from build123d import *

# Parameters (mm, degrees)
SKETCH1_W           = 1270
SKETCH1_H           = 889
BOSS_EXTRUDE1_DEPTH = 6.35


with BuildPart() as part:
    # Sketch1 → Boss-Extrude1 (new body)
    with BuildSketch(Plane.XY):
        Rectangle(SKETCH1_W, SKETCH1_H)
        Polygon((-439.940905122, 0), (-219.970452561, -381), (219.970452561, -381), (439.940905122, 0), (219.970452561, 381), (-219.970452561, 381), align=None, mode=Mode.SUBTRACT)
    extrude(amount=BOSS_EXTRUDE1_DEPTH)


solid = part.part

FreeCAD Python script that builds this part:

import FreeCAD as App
import Part
import Sketcher
Q = App.Units.Quantity

doc = App.newDocument("Part")
body = doc.addObject("PartDesign::Body", "Body")

# Sketch on XY plane
sketch1 = body.newObject("Sketcher::SketchObject", "Sketch")
sketch1.AttachmentSupport = (doc.getObject("XY_Plane"), [""])
sketch1.MapMode = "FlatFace"
sketch1.addGeometry(Part.LineSegment(App.Vector(-635, 444, 0), App.Vector(-635, -444, 0)), False)
sketch1.addGeometry(Part.LineSegment(App.Vector(-635, -444, 0), App.Vector(635, -444, 0)), False)
sketch1.addGeometry(Part.LineSegment(App.Vector(635, -444, 0), App.Vector(635, 444, 0)), False)
sketch1.addGeometry(Part.LineSegment(App.Vector(635, 444, 0), App.Vector(-635, 444, 0)), False)
sketch1.addGeometry(Part.LineSegment(App.Vector(-220, -381, 0), App.Vector(-440, 0, 0)), False)
sketch1.addGeometry(Part.LineSegment(App.Vector(-440, 0, 0), App.Vector(-220, 381, 0)), False)
sketch1.addGeometry(Part.LineSegment(App.Vector(-220, 381, 0), App.Vector(220, 381, 0)), False)
sketch1.addGeometry(Part.LineSegment(App.Vector(220, 381, 0), App.Vector(440, 0, 0)), False)
sketch1.addGeometry(Part.LineSegment(App.Vector(440, 0, 0), App.Vector(220, -381, 0)), False)
sketch1.addGeometry(Part.LineSegment(App.Vector(220, -381, 0), App.Vector(-220, -381, 0)), False)
sketch1.addConstraint(Sketcher.Constraint("Coincident", 0, 2, 1, 1))
sketch1.addConstraint(Sketcher.Constraint("Coincident", 1, 2, 2, 1))
sketch1.addConstraint(Sketcher.Constraint("Coincident", 2, 2, 3, 1))
sketch1.addConstraint(Sketcher.Constraint("Coincident", 3, 2, 0, 1))
sketch1.addConstraint(Sketcher.Constraint("Coincident", 4, 2, 5, 1))
sketch1.addConstraint(Sketcher.Constraint("Coincident", 5, 2, 6, 1))
sketch1.addConstraint(Sketcher.Constraint("Coincident", 6, 2, 7, 1))
sketch1.addConstraint(Sketcher.Constraint("Coincident", 7, 2, 8, 1))
sketch1.addConstraint(Sketcher.Constraint("Coincident", 8, 2, 9, 1))
sketch1.addConstraint(Sketcher.Constraint("Coincident", 9, 2, 4, 1))
sketch1.addConstraint(Sketcher.Constraint("Vertical", 0))
sketch1.addConstraint(Sketcher.Constraint("Horizontal", 1))
sketch1.addConstraint(Sketcher.Constraint("Vertical", 2))
sketch1.addConstraint(Sketcher.Constraint("Horizontal", 3))
sketch1.addConstraint(Sketcher.Constraint("Horizontal", 6))
sketch1.addConstraint(Sketcher.Constraint("Horizontal", 9))
sketch1.addConstraint(Sketcher.Constraint("Symmetric", 0, 2, 2, 2, -1, 1))
sketch1.addConstraint(Sketcher.Constraint("Symmetric", 4, 2, 7, 2, -1, 1))
sketch1.addConstraint(Sketcher.Constraint("Symmetric", 5, 2, 8, 2, -1, 1))
sketch1.addConstraint(Sketcher.Constraint("PointOnObject", 4, 2, -1))
sketch1.addConstraint(Sketcher.Constraint("Parallel", 4, 7))
sketch1.addConstraint(Sketcher.Constraint("Vertical", 6, 2, 8, 2))
sketch1.addConstraint(Sketcher.Constraint("DistanceX", 1, 1, 1, 2, Q("50 in")))
sketch1.addConstraint(Sketcher.Constraint("DistanceY", 0, 2, 0, 1, Q("35 in")))
sketch1.addConstraint(Sketcher.Constraint("DistanceY", -1, 1, 5, 2, Q("15 in")))
sketch1.addConstraint(Sketcher.Constraint("Angle", 4, Q("120 deg")))
sketch1.addConstraint(Sketcher.Constraint("DistanceX", 6, 1, 6, 2, 439.940905))
pad1 = body.newObject("PartDesign::Pad", "Pad")
pad1.Profile = sketch1
pad1.Length = Q("0.25 in")

doc.recompute()
